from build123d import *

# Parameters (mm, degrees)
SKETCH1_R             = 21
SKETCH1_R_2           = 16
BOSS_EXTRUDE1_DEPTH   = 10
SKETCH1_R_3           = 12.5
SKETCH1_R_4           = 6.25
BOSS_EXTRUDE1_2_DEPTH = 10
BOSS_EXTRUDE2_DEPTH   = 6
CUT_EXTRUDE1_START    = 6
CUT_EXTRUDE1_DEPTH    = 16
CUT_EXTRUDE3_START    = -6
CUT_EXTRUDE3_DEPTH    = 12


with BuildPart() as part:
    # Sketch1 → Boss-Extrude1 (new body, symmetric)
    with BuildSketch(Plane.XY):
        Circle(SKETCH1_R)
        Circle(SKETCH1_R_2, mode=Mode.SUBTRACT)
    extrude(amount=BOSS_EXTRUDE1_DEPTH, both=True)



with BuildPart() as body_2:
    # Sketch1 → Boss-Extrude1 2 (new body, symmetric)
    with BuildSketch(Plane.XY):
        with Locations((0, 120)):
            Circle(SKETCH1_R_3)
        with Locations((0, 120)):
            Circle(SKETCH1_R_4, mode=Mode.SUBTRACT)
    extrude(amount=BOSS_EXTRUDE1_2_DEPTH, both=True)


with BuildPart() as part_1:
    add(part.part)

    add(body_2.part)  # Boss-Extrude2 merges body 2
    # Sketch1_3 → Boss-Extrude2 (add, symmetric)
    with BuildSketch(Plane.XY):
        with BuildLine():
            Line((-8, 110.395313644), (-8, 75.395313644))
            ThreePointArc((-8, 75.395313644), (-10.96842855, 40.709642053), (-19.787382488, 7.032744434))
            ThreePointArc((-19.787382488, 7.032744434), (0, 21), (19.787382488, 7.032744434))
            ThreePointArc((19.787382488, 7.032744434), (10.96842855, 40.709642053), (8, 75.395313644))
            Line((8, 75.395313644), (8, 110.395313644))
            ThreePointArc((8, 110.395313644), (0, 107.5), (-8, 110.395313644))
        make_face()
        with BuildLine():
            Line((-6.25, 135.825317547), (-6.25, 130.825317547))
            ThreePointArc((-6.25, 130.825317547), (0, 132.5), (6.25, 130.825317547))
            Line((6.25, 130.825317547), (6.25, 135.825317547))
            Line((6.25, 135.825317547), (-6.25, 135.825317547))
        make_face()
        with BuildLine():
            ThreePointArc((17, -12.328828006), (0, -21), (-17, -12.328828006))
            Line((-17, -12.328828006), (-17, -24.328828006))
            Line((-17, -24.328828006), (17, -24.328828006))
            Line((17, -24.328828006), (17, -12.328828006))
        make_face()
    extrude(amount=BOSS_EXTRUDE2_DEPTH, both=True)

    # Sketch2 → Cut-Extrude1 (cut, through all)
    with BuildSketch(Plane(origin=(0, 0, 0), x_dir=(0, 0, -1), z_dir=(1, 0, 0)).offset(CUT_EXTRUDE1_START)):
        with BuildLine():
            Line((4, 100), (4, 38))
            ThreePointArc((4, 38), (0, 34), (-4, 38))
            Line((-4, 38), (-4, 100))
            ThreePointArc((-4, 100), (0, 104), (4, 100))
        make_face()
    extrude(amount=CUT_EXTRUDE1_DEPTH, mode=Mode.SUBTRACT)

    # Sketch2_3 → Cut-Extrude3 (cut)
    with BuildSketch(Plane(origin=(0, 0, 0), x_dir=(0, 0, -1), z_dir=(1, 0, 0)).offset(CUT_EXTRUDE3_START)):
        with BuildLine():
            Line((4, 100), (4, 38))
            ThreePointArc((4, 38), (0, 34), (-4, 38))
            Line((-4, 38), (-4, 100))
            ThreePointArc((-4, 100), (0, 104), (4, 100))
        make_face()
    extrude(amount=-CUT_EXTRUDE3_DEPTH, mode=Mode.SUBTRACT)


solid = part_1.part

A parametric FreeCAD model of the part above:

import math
import FreeCAD as App
import Part
import Sketcher
from FreeCAD import Vector

doc = App.newDocument("Part")
params = doc.addObject("Spreadsheet::Sheet", "Params")
for row, (alias, value) in enumerate([
    ("sketch1_diameter", "42 mm"),
    ("sketch1_diameter2", "32 mm"),
    ("pad1_length", "20 mm"),
    ("sketch2_diameter", "25 mm"),
    ("sketch2_diameter2", "12.5 mm"),
    ("pad2_length", "20 mm"),
    ("sketch3_radius", "21 mm"),
    ("sketch3_radius2", "12.5 mm"),
    ("sketch3_width", "34 mm"),
    ("sketch3_height", "35 mm"),
    ("sketch3_height2", "5 mm"),
    ("pad3_length", "12 mm"),
    ("sketch4_radius", "4 mm"),
    ("sketch4_width", "62 mm"),
    ("sketch5_radius", "4 mm"),
    ("sketch5_width", "62 mm"),
    ("pocket2_length", "12 mm"),
], start=1):
    params.set(f"A{row}", alias)
    params.set(f"B{row}", "=" + value)
    params.setAlias(f"B{row}", alias)

body = doc.addObject("PartDesign::Body", "Body")

sketch1 = body.newObject("Sketcher::SketchObject", "Sketch")
sketch1.AttachmentSupport = (doc.getObject("XY_Plane"), [""])
sketch1.MapMode = "FlatFace"
sketch1.addGeometry(Part.Circle(Vector(0, 0, 0), Vector(0, 0, 1), 21), False)
sketch1.addGeometry(Part.Circle(Vector(0, 0, 0), Vector(0, 0, 1), 16), False)
sketch1.addConstraint(Sketcher.Constraint("Coincident", 0, 3, -1, 1))
sketch1.addConstraint(Sketcher.Constraint("Coincident", 1, 3, -1, 1))
sketch1.addConstraint(Sketcher.Constraint("Diameter", 0, 42.0))
sketch1.addConstraint(Sketcher.Constraint("Diameter", 1, 32.0))
sketch1.setExpression("Constraints[2]", "Params.sketch1_diameter")
sketch1.setExpression("Constraints[3]", "Params.sketch1_diameter2")
pad1 = body.newObject("PartDesign::Pad", "Pad")
pad1.Profile = sketch1
pad1.setExpression("Length", "Params.pad1_length")
pad1.Midplane = True
body2 = doc.addObject("PartDesign::Body", "Body001")

sketch2 = body2.newObject("Sketcher::SketchObject", "Sketch001")
sketch2.AttachmentSupport = (doc.getObject("XY_Plane001"), [""])
sketch2.MapMode = "FlatFace"
sketch2.addGeometry(Part.Circle(Vector(0, 120, 0), Vector(0, 0, 1), 12), False)
sketch2.addGeometry(Part.Circle(Vector(0, 120, 0), Vector(0, 0, 1), 6), False)
sketch2.addConstraint(Sketcher.Constraint("Coincident", 1, 3, 0, 3))
sketch2.addConstraint(Sketcher.Constraint("PointOnObject", 0, 3, -2))
sketch2.addConstraint(Sketcher.Constraint("Diameter", 0, 25.0))
sketch2.addConstraint(Sketcher.Constraint("Diameter", 1, 12.5))
sketch2.addConstraint(Sketcher.Constraint("DistanceY", -1, 1, 0, 3, 120.0))
sketch2.setExpression("Constraints[2]", "Params.sketch2_diameter")
sketch2.setExpression("Constraints[3]", "Params.sketch2_diameter2")
pad2 = body2.newObject("PartDesign::Pad", "Pad001")
pad2.Profile = sketch2
pad2.setExpression("Length", "Params.pad2_length")
pad2.Midplane = True
body.AllowCompound = True
doc.recompute()

boolean = body.newObject("PartDesign::Boolean", "Boolean")
boolean.Type = "Fuse"
boolean.addObjects([body2])

sketch3 = body.newObject("Sketcher::SketchObject", "Sketch002")
sketch3.AttachmentSupport = (doc.getObject("XY_Plane"), [""])
sketch3.MapMode = "FlatFace"
sketch3.addGeometry(Part.LineSegment(Vector(-8, 110, 0), Vector(-8, 75, 0)), False)
sketch3.addGeometry(Part.ArcOfCircle(Part.Circle(Vector(-212, 75, 0), Vector(0, 0, 1), 204), math.radians(-19.57), math.radians(0)), False)
sketch3.addGeometry(Part.ArcOfCircle(Part.Circle(Vector(0, 0, 0), Vector(0, 0, 1), 21), math.radians(20), math.radians(160)), False)
sketch3.addGeometry(Part.ArcOfCircle(Part.Circle(Vector(212, 75, 0), Vector(0, 0, 1), 204), math.radians(180), math.radians(199.57)), False)
sketch3.addGeometry(Part.LineSegment(Vector(8, 75, 0), Vector(8, 110, 0)), False)
sketch3.addGeometry(Part.ArcOfCircle(Part.Circle(Vector(0, 120, 0), Vector(0, 0, 1), 12), math.radians(-130), math.radians(-50)), False)
sketch3.addGeometry(Part.LineSegment(Vector(-6, 136, 0), Vector(-6, 131, 0)), False)
sketch3.addGeometry(Part.ArcOfCircle(Part.Circle(Vector(0, 120, 0), Vector(0, 0, 1), 12), math.radians(60), math.radians(120)), False)
sketch3.addGeometry(Part.LineSegment(Vector(6, 131, 0), Vector(6, 136, 0)), False)
sketch3.addGeometry(Part.LineSegment(Vector(6, 136, 0), Vector(-6, 136, 0)), False)
sketch3.addGeometry(Part.ArcOfCircle(Part.Circle(Vector(0, 0, 0), Vector(0, 0, 1), 21), math.radians(-144), math.radians(-36)), False)
sketch3.addGeometry(Part.LineSegment(Vector(-17, -12, 0), Vector(-17, -24, 0)), False)
sketch3.addGeometry(Part.LineSegment(Vector(-17, -24, 0), Vector(17, -24, 0)), False)
sketch3.addGeometry(Part.LineSegment(Vector(17, -24, 0), Vector(17, -12, 0)), False)
sketch3.addConstraint(Sketcher.Constraint("Tangent", 0, 2, 1, 2))
sketch3.addConstraint(Sketcher.Constraint("Tangent", 1, 1, 2, 2))
sketch3.addConstraint(Sketcher.Constraint("Tangent", 2, 1, 3, 2))
sketch3.addConstraint(Sketcher.Constraint("Tangent", 3, 1, 4, 1))
sketch3.addConstraint(Sketcher.Constraint("Coincident", 4, 2, 5, 2))
sketch3.addConstraint(Sketcher.Constraint("Coincident", 5, 1, 0, 1))
sketch3.addConstraint(Sketcher.Constraint("Coincident", 6, 2, 7, 2))
sketch3.addConstraint(Sketcher.Constraint("Coincident", 7, 1, 8, 1))
sketch3.addConstraint(Sketcher.Constraint("Coincident", 8, 2, 9, 1))
sketch3.addConstraint(Sketcher.Constraint("Coincident", 9, 2, 6, 1))
sketch3.addConstraint(Sketcher.Constraint("Coincident", 10, 1, 11, 1))
sketch3.addConstraint(Sketcher.Constraint("Coincident", 11, 2, 12, 1))
sketch3.addConstraint(Sketcher.Constraint("Coincident", 12, 2, 13, 1))
sketch3.addConstraint(Sketcher.Constraint("Coincident", 13, 2, 10, 2))
sketch3.addConstraint(Sketcher.Constraint("Vertical", 0))
sketch3.addConstraint(Sketcher.Constraint("Vertical", 4))
sketch3.addConstraint(Sketcher.Constraint("Vertical", 6))
sketch3.addConstraint(Sketcher.Constraint("Vertical", 8))
sketch3.addConstraint(Sketcher.Constraint("Horizontal", 9))
sketch3.addConstraint(Sketcher.Constraint("Vertical", 11))
sketch3.addConstraint(Sketcher.Constraint("Horizontal", 12))
sketch3.addConstraint(Sketcher.Constraint("Vertical", 13))
sketch3.addConstraint(Sketcher.Constraint("Coincident", 2, 3, -1, 1))
sketch3.addConstraint(Sketcher.Constraint("Coincident", 10, 3, -1, 1))
sketch3.addConstraint(Sketcher.Constraint("Coincident", 7, 3, 5, 3))
sketch3.addConstraint(Sketcher.Constraint("Equal", 1, 3))
sketch3.addConstraint(Sketcher.Constraint("Equal", 5, 7))
sketch3.addConstraint(Sketcher.Constraint("Equal", 2, 10))
sketch3.addConstraint(Sketcher.Constraint("Symmetric", 4, 2, 5, 1, -2))
sketch3.addConstraint(Sketcher.Constraint("Horizontal", 6, 2, 7, 1))
sketch3.addConstraint(Sketcher.Constraint("Horizontal", 10, 1, 13, 2))
sketch3.addConstraint(Sketcher.Constraint("Radius", 2, 21.0))
sketch3.addConstraint(Sketcher.Constraint("Radius", 5, 12.5))
sketch3.addConstraint(Sketcher.Constraint("DistanceX", 12, 1, 12, 2, 34.0))
sketch3.addConstraint(Sketcher.Constraint("DistanceY", 0, 2, 0, 1, 35.0))
sketch3.addConstraint(Sketcher.Constraint("DistanceY", 6, 2, 6, 1, 5.0))
sketch3.addConstraint(Sketcher.Constraint("DistanceY", 11, 2, 11, 1, 12.0))
sketch3.addConstraint(Sketcher.Constraint("DistanceX", 9, 2, 9, 1, 12.5))
sketch3.addConstraint(Sketcher.Constraint("DistanceY", -1, 1, 5, 3, 120.0))
sketch3.addConstraint(Sketcher.Constraint("DistanceX", 0, 2, -1, 1, 8.0))
sketch3.setExpression("Constraints[31]", "Params.sketch3_radius")
sketch3.setExpression("Constraints[32]", "Params.sketch3_radius2")
sketch3.setExpression("Constraints[33]", "Params.sketch3_width")
sketch3.setExpression("Constraints[34]", "Params.sketch3_height")
sketch3.setExpression("Constraints[35]", "Params.sketch3_height2")
pad3 = body.newObject("PartDesign::Pad", "Pad002")
pad3.Profile = sketch3
pad3.setExpression("Length", "Params.pad3_length")
pad3.Midplane = True

sketch4 = body.newObject("Sketcher::SketchObject", "Sketch003")
sketch4.AttachmentSupport = (doc.getObject("YZ_Plane"), [""])
sketch4.MapMode = "FlatFace"
sketch4.AttachmentOffset = App.Placement(Vector(0, 0, 6), App.Rotation())
sketch4.addGeometry(Part.LineSegment(Vector(38, -4, 0), Vector(100, -4, 0)), False)
sketch4.addGeometry(Part.ArcOfCircle(Part.Circle(Vector(100, 0, 0), Vector(0, 0, 1), 4), math.radians(-90), math.radians(90)), False)
sketch4.addGeometry(Part.LineSegment(Vector(100, 4, 0), Vector(38, 4, 0)), False)
sketch4.addGeometry(Part.ArcOfCircle(Part.Circle(Vector(38, 0, 0), Vector(0, 0, 1), 4), math.radians(90), math.radians(270)), False)
sketch4.addConstraint(Sketcher.Constraint("Tangent", 0, 2, 1, 1))
sketch4.addConstraint(Sketcher.Constraint("Tangent", 1, 2, 2, 1))
sketch4.addConstraint(Sketcher.Constraint("Tangent", 2, 2, 3, 1))
sketch4.addConstraint(Sketcher.Constraint("Tangent", 3, 2, 0, 1))
sketch4.addConstraint(Sketcher.Constraint("Horizontal", 0))
sketch4.addConstraint(Sketcher.Constraint("Horizontal", 2))
sketch4.addConstraint(Sketcher.Constraint("PointOnObject", 1, 3, -1))
sketch4.addConstraint(Sketcher.Constraint("Radius", 1, 4.0))
sketch4.addConstraint(Sketcher.Constraint("DistanceX", 0, 1, 0, 2, 62.0))
sketch4.addConstraint(Sketcher.Constraint("DistanceX", -1, 1, 1, 3, 100.0))
sketch4.setExpression("Constraints[7]", "Params.sketch4_radius")
sketch4.setExpression("Constraints[8]", "Params.sketch4_width")
pocket1 = body.newObject("PartDesign::Pocket", "Pocket")
pocket1.Profile = sketch4
pocket1.Type = "ThroughAll"
pocket1.Reversed = True

sketch5 = body.newObject("Sketcher::SketchObject", "Sketch004")
sketch5.AttachmentSupport = (doc.getObject("YZ_Plane"), [""])
sketch5.MapMode = "FlatFace"
sketch5.AttachmentOffset = App.Placement(Vector(0, 0, -6), App.Rotation())
sketch5.addGeometry(Part.LineSegment(Vector(38, -4, 0), Vector(100, -4, 0)), False)
sketch5.addGeometry(Part.ArcOfCircle(Part.Circle(Vector(100, 0, 0), Vector(0, 0, 1), 4), math.radians(-90), math.radians(90)), False)
sketch5.addGeometry(Part.LineSegment(Vector(100, 4, 0), Vector(38, 4, 0)), False)
sketch5.addGeometry(Part.ArcOfCircle(Part.Circle(Vector(38, 0, 0), Vector(0, 0, 1), 4), math.radians(90), math.radians(270)), False)
sketch5.addConstraint(Sketcher.Constraint("Tangent", 0, 2, 1, 1))
sketch5.addConstraint(Sketcher.Constraint("Tangent", 1, 2, 2, 1))
sketch5.addConstraint(Sketcher.Constraint("Tangent", 2, 2, 3, 1))
sketch5.addConstraint(Sketcher.Constraint("Tangent", 3, 2, 0, 1))
sketch5.addConstraint(Sketcher.Constraint("Horizontal", 0))
sketch5.addConstraint(Sketcher.Constraint("Horizontal", 2))
sketch5.addConstraint(Sketcher.Constraint("PointOnObject", 1, 3, -1))
sketch5.addConstraint(Sketcher.Constraint("Radius", 1, 4.0))
sketch5.addConstraint(Sketcher.Constraint("DistanceX", 0, 1, 0, 2, 62.0))
sketch5.addConstraint(Sketcher.Constraint("DistanceX", -1, 1, 1, 3, 100.0))
sketch5.setExpression("Constraints[7]", "Params.sketch5_radius")
sketch5.setExpression("Constraints[8]", "Params.sketch5_width")
pocket2 = body.newObject("PartDesign::Pocket", "Pocket001")
pocket2.Profile = sketch5
pocket2.setExpression("Length", "Params.pocket2_length")

doc.recompute()
